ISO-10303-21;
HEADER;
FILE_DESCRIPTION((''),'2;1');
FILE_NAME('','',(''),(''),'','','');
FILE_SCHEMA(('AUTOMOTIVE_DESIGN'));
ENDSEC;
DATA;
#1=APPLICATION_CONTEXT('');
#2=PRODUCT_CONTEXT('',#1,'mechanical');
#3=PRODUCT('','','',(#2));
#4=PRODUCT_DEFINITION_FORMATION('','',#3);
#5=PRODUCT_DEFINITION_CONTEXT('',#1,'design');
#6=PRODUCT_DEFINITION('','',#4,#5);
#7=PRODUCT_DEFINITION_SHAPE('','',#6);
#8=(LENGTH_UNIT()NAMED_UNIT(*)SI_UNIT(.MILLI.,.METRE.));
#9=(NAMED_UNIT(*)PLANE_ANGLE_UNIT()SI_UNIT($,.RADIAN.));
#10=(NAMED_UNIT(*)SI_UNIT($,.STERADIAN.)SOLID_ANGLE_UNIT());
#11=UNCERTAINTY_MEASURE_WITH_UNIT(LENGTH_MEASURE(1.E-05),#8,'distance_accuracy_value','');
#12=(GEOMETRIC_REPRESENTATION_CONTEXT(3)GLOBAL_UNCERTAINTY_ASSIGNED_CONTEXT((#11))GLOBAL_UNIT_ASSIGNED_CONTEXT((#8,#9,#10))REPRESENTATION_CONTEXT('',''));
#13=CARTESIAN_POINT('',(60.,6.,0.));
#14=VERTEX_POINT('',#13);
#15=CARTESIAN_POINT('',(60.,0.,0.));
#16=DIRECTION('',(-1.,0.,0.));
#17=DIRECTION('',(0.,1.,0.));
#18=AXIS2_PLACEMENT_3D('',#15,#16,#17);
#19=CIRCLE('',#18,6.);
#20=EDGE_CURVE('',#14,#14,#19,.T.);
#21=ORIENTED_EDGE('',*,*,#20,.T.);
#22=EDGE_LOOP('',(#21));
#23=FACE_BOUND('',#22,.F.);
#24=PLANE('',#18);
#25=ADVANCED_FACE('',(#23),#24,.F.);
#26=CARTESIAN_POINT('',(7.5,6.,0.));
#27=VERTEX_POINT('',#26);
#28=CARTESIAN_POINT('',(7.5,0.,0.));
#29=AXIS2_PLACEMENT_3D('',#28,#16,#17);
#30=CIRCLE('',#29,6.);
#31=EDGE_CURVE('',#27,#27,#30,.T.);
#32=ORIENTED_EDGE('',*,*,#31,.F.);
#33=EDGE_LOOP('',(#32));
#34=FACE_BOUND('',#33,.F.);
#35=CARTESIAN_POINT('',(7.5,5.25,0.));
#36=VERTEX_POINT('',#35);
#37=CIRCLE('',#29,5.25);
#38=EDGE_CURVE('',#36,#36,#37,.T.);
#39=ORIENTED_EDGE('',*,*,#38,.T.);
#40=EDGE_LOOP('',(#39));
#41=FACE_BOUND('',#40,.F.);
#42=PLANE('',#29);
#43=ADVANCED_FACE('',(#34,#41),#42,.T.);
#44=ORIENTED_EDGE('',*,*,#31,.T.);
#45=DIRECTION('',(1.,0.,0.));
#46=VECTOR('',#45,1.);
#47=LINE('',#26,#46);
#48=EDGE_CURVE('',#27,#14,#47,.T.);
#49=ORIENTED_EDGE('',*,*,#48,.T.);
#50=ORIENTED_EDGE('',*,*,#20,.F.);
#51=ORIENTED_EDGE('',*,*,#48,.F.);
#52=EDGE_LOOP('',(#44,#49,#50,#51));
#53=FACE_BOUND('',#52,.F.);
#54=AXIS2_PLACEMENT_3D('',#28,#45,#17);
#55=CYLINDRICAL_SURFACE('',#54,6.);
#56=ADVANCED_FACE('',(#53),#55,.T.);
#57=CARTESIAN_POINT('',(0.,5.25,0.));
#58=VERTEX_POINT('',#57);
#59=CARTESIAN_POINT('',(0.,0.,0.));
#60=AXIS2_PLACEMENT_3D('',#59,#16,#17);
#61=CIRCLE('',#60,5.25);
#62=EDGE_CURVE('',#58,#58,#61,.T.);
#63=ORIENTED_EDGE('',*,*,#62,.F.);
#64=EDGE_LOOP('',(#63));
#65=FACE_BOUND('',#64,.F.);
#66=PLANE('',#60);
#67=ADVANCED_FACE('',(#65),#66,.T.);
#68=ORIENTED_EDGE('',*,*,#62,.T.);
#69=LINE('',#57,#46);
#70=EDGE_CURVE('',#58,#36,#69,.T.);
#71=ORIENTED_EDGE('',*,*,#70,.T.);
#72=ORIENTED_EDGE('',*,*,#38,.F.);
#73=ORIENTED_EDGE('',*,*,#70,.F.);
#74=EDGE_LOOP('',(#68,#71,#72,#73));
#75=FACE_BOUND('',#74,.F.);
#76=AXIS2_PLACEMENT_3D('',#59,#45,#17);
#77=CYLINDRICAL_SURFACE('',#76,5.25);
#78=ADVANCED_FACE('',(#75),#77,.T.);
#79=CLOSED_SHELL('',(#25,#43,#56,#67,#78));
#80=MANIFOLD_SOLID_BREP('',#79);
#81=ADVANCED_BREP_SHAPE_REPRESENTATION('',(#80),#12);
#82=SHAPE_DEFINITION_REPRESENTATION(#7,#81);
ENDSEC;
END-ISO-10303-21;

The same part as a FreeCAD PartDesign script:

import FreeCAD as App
import Part
import Sketcher

doc = App.newDocument("Part")
body = doc.addObject("PartDesign::Body", "Body")

sketch1 = body.newObject("Sketcher::SketchObject", "Sketch")
sketch1.AttachmentSupport = (doc.getObject("XY_Plane"), [""])
sketch1.MapMode = "FlatFace"
sketch1.addGeometry(Part.LineSegment(App.Vector(0, 5.25, 0), App.Vector(0, 0, 0)), False)
sketch1.addGeometry(Part.LineSegment(App.Vector(0, 0, 0), App.Vector(60, 0, 0)), False)
sketch1.addGeometry(Part.LineSegment(App.Vector(60, 0, 0), App.Vector(60, 6, 0)), False)
sketch1.addGeometry(Part.LineSegment(App.Vector(60, 6, 0), App.Vector(7.5, 6, 0)), False)
sketch1.addGeometry(Part.LineSegment(App.Vector(7.5, 6, 0), App.Vector(7.5, 5.25, 0)), False)
sketch1.addGeometry(Part.LineSegment(App.Vector(7.5, 5.25, 0), App.Vector(0, 5.25, 0)), False)
sketch1.addConstraint(Sketcher.Constraint("Coincident", 0, 2, 1, 1))
sketch1.addConstraint(Sketcher.Constraint("Coincident", 1, 2, 2, 1))
sketch1.addConstraint(Sketcher.Constraint("Coincident", 2, 2, 3, 1))
sketch1.addConstraint(Sketcher.Constraint("Coincident", 3, 2, 4, 1))
sketch1.addConstraint(Sketcher.Constraint("Coincident", 4, 2, 5, 1))
sketch1.addConstraint(Sketcher.Constraint("Coincident", 5, 2, 0, 1))
sketch1.addConstraint(Sketcher.Constraint("Vertical", 0))
sketch1.addConstraint(Sketcher.Constraint("Horizontal", 1))
sketch1.addConstraint(Sketcher.Constraint("Vertical", 2))
sketch1.addConstraint(Sketcher.Constraint("Horizontal", 3))
sketch1.addConstraint(Sketcher.Constraint("Vertical", 4))
sketch1.addConstraint(Sketcher.Constraint("Horizontal", 5))
sketch1.addConstraint(Sketcher.Constraint("Coincident", 0, 2, -1, 1))
sketch1.addConstraint(Sketcher.Constraint("DistanceX", 1, 1, 1, 2, 60.0))
sketch1.addConstraint(Sketcher.Constraint("DistanceY", 2, 1, 2, 2, 6.0))
sketch1.addConstraint(Sketcher.Constraint("DistanceX", 5, 2, 5, 1, 7.5))
sketch1.addConstraint(Sketcher.Constraint("DistanceY", 0, 2, 0, 1, 5.25))
revolution = body.newObject("PartDesign::Revolution", "Revolution")
revolution.Profile = sketch1
revolution.ReferenceAxis = (sketch1, ["H_Axis"])
revolution.Angle = 360

doc.recompute()
